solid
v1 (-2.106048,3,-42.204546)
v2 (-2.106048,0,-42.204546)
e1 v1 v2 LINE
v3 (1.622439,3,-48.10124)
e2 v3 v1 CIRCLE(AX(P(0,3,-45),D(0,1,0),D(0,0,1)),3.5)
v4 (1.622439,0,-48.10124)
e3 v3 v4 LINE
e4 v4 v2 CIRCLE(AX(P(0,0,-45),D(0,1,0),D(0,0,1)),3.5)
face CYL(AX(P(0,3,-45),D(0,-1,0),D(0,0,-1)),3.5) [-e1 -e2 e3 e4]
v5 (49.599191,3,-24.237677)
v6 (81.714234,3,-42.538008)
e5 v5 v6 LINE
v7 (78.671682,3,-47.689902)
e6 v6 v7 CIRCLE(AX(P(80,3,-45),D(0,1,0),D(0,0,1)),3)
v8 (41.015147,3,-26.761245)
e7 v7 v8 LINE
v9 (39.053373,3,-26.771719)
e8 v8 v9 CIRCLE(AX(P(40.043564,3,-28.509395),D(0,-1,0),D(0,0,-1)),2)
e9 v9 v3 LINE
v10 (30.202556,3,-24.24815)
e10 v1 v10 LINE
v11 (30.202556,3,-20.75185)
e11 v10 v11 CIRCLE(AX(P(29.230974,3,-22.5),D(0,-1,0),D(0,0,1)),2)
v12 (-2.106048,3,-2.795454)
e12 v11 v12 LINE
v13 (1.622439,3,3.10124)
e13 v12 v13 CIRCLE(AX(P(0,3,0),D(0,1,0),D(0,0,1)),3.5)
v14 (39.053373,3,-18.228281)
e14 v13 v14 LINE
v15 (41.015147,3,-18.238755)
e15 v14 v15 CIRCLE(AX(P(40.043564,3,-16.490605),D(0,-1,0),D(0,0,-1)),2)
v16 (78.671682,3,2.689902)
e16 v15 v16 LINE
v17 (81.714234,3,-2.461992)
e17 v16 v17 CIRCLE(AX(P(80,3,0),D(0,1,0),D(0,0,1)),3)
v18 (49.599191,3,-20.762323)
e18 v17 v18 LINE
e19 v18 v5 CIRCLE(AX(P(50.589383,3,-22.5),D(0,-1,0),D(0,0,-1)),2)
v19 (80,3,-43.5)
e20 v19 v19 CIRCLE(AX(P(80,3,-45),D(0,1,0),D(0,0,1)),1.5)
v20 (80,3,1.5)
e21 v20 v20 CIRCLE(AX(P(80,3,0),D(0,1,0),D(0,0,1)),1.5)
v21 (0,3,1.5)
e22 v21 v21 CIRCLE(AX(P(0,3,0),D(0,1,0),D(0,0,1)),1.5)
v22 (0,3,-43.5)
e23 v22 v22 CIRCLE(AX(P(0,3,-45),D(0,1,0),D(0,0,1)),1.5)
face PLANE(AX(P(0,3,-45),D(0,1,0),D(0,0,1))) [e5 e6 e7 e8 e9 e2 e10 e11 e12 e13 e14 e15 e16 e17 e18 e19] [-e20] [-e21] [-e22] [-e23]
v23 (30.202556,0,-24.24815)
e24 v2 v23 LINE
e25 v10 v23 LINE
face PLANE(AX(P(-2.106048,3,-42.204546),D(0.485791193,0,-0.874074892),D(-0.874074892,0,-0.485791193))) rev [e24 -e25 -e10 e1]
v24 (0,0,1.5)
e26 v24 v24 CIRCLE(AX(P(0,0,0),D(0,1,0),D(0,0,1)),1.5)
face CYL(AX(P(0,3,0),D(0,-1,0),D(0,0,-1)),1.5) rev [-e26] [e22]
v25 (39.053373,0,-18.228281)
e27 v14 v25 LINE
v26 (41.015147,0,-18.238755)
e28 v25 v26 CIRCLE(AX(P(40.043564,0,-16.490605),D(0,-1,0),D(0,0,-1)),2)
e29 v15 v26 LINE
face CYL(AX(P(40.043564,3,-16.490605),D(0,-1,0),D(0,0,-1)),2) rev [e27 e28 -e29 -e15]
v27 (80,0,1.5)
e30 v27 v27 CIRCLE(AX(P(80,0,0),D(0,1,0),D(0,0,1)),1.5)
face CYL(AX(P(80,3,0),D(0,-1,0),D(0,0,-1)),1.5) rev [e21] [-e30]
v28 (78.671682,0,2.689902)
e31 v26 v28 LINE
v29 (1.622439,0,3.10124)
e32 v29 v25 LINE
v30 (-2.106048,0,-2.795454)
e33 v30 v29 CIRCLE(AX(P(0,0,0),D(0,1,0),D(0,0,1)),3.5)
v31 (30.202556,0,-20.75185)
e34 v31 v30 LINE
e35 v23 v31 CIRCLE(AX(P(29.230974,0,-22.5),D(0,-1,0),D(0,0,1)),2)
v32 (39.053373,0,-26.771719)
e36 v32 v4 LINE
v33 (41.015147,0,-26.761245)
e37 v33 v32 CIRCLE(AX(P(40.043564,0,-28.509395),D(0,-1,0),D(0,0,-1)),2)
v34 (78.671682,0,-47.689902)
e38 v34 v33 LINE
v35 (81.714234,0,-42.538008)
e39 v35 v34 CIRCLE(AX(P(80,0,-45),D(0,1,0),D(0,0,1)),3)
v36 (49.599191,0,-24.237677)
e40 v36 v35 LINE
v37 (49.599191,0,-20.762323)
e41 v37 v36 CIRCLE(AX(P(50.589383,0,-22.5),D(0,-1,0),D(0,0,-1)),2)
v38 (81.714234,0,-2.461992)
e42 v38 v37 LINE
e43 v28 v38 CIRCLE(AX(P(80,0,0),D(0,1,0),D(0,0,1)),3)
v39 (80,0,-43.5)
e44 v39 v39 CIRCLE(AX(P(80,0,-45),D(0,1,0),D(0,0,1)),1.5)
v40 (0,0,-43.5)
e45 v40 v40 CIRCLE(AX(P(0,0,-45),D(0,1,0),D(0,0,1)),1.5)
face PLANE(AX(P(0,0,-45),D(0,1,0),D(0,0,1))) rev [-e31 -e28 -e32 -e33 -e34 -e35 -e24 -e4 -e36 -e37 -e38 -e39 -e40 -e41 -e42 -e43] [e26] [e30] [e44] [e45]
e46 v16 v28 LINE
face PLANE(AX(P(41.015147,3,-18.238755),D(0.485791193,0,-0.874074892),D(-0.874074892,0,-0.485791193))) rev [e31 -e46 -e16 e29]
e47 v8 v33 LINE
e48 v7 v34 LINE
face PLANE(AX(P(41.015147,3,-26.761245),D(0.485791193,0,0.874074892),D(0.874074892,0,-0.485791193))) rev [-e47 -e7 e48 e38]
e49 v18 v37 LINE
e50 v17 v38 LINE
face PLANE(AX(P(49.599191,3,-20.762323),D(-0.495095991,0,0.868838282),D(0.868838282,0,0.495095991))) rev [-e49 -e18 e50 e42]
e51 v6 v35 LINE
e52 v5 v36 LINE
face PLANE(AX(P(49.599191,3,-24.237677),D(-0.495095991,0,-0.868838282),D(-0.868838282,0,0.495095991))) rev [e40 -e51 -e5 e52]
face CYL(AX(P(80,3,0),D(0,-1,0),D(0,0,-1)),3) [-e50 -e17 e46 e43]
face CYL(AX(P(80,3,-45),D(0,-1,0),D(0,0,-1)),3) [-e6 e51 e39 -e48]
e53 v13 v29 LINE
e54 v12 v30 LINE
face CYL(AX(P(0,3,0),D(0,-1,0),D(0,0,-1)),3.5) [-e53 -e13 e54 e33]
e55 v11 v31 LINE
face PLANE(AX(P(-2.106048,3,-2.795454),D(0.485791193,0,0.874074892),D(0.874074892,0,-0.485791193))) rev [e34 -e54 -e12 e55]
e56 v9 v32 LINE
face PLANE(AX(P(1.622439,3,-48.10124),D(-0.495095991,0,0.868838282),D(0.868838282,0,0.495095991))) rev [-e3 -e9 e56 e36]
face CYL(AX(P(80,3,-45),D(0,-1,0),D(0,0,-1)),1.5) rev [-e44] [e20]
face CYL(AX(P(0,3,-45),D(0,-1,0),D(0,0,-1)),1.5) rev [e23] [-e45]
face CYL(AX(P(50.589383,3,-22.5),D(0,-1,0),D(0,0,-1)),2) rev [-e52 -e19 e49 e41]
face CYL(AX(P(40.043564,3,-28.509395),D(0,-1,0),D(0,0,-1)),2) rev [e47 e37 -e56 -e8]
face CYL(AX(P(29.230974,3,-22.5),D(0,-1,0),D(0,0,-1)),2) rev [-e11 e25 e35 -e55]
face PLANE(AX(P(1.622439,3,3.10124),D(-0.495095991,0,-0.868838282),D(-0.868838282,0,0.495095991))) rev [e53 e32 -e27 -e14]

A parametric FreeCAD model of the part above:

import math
import FreeCAD as App
import Part
import Sketcher

doc = App.newDocument("Part")
body = doc.addObject("PartDesign::Body", "Body")

# Sketch on XZ plane
sketch1 = doc.addObject("Sketcher::SketchObject", "Sketch")
body.addObject(sketch1)
sketch1.AttachmentSupport = (doc.XZ_Plane, [""])
sketch1.MapMode = "FlatFace"
sketch1.addGeometry([
    Part.LineSegment(App.Vector(39.053373, -26.771719, 0), App.Vector(1.622439, -48.10124, 0)),  # 0
    Part.ArcOfCircle(Part.Circle(App.Vector(0, -45, 0), App.Vector(0, 0, 1), 3.5), math.radians(126.993762), math.radians(297.616683)),  # 1
    Part.LineSegment(App.Vector(-2.106048, -42.204546, 0), App.Vector(30.202556, -24.24815, 0)),  # 2
    Part.ArcOfCircle(Part.Circle(App.Vector(29.230974, -22.5, 0), App.Vector(0, 0, 1), 2), math.radians(-60.935678), math.radians(60.935678)),  # 3
    Part.LineSegment(App.Vector(30.202556, -20.75185, 0), App.Vector(-2.106048, -2.795454, 0)),  # 4
    Part.ArcOfCircle(Part.Circle(App.Vector(0, 0, 0), App.Vector(0, 0, 1), 3.5), math.radians(62.383317), math.radians(233.006238)),  # 5
    Part.LineSegment(App.Vector(1.622439, 3.10124, 0), App.Vector(39.053373, -18.228281, 0)),  # 6
    Part.ArcOfCircle(Part.Circle(App.Vector(40.043564, -16.490605, 0), App.Vector(0, 0, 1), 2), math.radians(-119.67608), math.radians(-60.935678)),  # 7
    Part.LineSegment(App.Vector(41.015147, -18.238755, 0), App.Vector(78.671682, 2.689902, 0)),  # 8
    Part.ArcOfCircle(Part.Circle(App.Vector(80, 0, 0), App.Vector(0, 0, 1), 3), math.radians(-55.151308), math.radians(116.280929)),  # 9
    Part.LineSegment(App.Vector(81.714234, -2.461992, 0), App.Vector(49.599191, -20.762323, 0)),  # 10
    Part.ArcOfCircle(Part.Circle(App.Vector(50.589383, -22.5, 0), App.Vector(0, 0, 1), 2), math.radians(119.67608), math.radians(240.32392)),  # 11
    Part.LineSegment(App.Vector(49.599191, -24.237677, 0), App.Vector(81.714234, -42.538008, 0)),  # 12
    Part.ArcOfCircle(Part.Circle(App.Vector(80, -45, 0), App.Vector(0, 0, 1), 3), math.radians(-116.280929), math.radians(55.151308)),  # 13
    Part.LineSegment(App.Vector(78.671682, -47.689902, 0), App.Vector(41.015147, -26.761245, 0)),  # 14
    Part.ArcOfCircle(Part.Circle(App.Vector(40.043564, -28.509395, 0), App.Vector(0, 0, 1), 2), math.radians(60.935678), math.radians(119.67608)),  # 15
    Part.Circle(App.Vector(80, 0, 0), App.Vector(0, 0, 1), 1.5),  # 16
    Part.Circle(App.Vector(0, 0, 0), App.Vector(0, 0, 1), 1.5),  # 17
    Part.Circle(App.Vector(80, -45, 0), App.Vector(0, 0, 1), 1.5),  # 18
    Part.Circle(App.Vector(0, -45, 0), App.Vector(0, 0, 1), 1.5),  # 19
], False)
sketch1.addConstraint([
    Sketcher.Constraint("Coincident", 0, 2, 1, 2),
    Sketcher.Constraint("Coincident", 1, 1, 2, 1),
    Sketcher.Constraint("Coincident", 2, 2, 3, 1),
    Sketcher.Constraint("Coincident", 3, 2, 4, 1),
    Sketcher.Constraint("Coincident", 4, 2, 5, 2),
    Sketcher.Constraint("Coincident", 5, 1, 6, 1),
    Sketcher.Constraint("Coincident", 6, 2, 7, 1),
    Sketcher.Constraint("Coincident", 7, 2, 8, 1),
    Sketcher.Constraint("Coincident", 8, 2, 9, 2),
    Sketcher.Constraint("Coincident", 9, 1, 10, 1),
    Sketcher.Constraint("Coincident", 10, 2, 11, 1),
    Sketcher.Constraint("Coincident", 11, 2, 12, 1),
    Sketcher.Constraint("Coincident", 12, 2, 13, 2),
    Sketcher.Constraint("Coincident", 13, 1, 14, 1),
    Sketcher.Constraint("Coincident", 14, 2, 15, 1),
    Sketcher.Constraint("Coincident", 15, 2, 0, 1),
    Sketcher.Constraint("Coincident", 5, 3, -1, 1),
    Sketcher.Constraint("Coincident", 17, 3, -1, 1),
    Sketcher.Constraint("Coincident", 16, 3, 9, 3),
    Sketcher.Constraint("Coincident", 18, 3, 13, 3),
    Sketcher.Constraint("Coincident", 19, 3, 1, 3),
    Sketcher.Constraint("PointOnObject", 1, 3, -2),
    Sketcher.Constraint("PointOnObject", 9, 3, -1),
    Sketcher.Constraint("Diameter", 16, 3.0),
    Sketcher.Constraint("Diameter", 17, 3.0),
    Sketcher.Constraint("Diameter", 18, 3.0),
    Sketcher.Constraint("Diameter", 19, 3.0),
    Sketcher.Constraint("Radius", 3, 2.0),
    Sketcher.Constraint("Radius", 7, 2.0),
    Sketcher.Constraint("Radius", 9, 3.0),
    Sketcher.Constraint("Radius", 11, 2.0),
    Sketcher.Constraint("Radius", 13, 3.0),
    Sketcher.Constraint("Radius", 15, 2.0),
    Sketcher.Constraint("Radius", 1, 3.5),
    Sketcher.Constraint("Radius", 5, 3.5),
    Sketcher.Constraint("DistanceY", 1, 3, -1, 1, 45.0),
    Sketcher.Constraint("DistanceX", -1, 1, 9, 3, 80.0),
    Sketcher.Constraint("DistanceX", -1, 1, 13, 3, 80.0),
    Sketcher.Constraint("DistanceY", 13, 3, -1, 1, 45.0),
    Sketcher.Constraint("DistanceY", 3, 3, -1, 1, 22.5),
    Sketcher.Constraint("DistanceY", 11, 3, -1, 1, 22.5),
    Sketcher.Constraint("Distance", 2, 36.963199),
    Sketcher.Constraint("Distance", 4, 36.963199),
    Sketcher.Constraint("Distance", 10, 36.963199),
    Sketcher.Constraint("Distance", 12, 36.963199),
    Sketcher.Constraint("DistanceY", -1, 1, 8, 2, 2.689902),
    Sketcher.Constraint("DistanceY", 13, 1, -1, 1, 47.689902),
    Sketcher.Constraint("DistanceY", 2, 2, 3, 2, 3.4963),
    Sketcher.Constraint("DistanceX", 3, 3, 6, 2, 9.822399),
    Sketcher.Constraint("DistanceX", 11, 3, 8, 2, 28.082299),
    Sketcher.Constraint("Distance", 0, 43.081588),
    Sketcher.Constraint("Distance", 6, 43.081588),
    Sketcher.Constraint("Distance", 8, 43.081588),
    Sketcher.Constraint("Distance", 14, 43.081588),
    Sketcher.Constraint("DistanceX", -1, 1, 0, 2, 1.622439),
    Sketcher.Constraint("DistanceX", 1, 1, -1, 1, 2.106048),
    Sketcher.Constraint("DistanceY", 2, 2, -1, 1, 24.24815),
    Sketcher.Constraint("DistanceX", -1, 1, 5, 1, 1.622439),
    Sketcher.Constraint("DistanceY", 9, 1, -1, 1, 2.461992),
    Sketcher.Constraint("DistanceX", -1, 1, 11, 2, 49.599191),
    Sketcher.Constraint("DistanceY", 15, 2, -1, 1, 26.771719),
    Sketcher.Constraint("DistanceX", 3, 3, 7, 3, 10.812591),
    Sketcher.Constraint("DistanceY", 15, 3, 7, 3, 12.01879),
])
pad1 = doc.addObject("PartDesign::Pad", "Pad")
body.addObject(pad1)
pad1.Profile = sketch1
pad1.Length = 3
pad1.Reversed = True

doc.recompute()
